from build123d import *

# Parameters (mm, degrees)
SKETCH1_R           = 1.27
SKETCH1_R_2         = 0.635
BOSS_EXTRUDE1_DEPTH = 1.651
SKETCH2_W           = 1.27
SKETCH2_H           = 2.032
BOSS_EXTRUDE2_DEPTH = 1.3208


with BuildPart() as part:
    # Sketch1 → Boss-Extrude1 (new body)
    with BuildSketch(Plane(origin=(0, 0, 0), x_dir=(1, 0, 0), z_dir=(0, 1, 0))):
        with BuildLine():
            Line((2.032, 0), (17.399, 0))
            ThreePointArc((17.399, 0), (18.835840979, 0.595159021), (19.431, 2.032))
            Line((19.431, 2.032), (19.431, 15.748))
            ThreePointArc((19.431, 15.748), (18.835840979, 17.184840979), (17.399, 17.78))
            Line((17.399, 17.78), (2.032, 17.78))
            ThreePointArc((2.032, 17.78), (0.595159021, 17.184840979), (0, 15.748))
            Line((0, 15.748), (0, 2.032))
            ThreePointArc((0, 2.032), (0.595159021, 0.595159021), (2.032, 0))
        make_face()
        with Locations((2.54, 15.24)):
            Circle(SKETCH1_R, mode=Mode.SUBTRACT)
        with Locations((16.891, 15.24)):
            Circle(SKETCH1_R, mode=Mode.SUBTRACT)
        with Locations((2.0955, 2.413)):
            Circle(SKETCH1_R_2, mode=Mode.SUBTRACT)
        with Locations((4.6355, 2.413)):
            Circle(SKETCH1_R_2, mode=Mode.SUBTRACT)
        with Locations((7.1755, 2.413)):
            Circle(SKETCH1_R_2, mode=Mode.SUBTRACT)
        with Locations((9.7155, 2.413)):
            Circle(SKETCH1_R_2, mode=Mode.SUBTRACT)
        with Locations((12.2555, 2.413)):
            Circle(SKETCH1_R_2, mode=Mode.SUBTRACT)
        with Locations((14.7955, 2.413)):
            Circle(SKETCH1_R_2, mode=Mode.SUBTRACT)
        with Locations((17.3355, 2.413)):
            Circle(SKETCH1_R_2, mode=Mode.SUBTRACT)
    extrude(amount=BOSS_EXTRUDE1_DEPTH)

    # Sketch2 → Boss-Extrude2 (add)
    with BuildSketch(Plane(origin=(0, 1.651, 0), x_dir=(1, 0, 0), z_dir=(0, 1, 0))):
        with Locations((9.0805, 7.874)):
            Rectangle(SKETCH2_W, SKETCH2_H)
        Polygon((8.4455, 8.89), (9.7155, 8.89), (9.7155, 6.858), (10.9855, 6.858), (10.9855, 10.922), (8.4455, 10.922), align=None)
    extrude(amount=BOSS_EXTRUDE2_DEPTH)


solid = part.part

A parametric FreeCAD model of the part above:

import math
import FreeCAD as App
import Part
import Sketcher
Q = App.Units.Quantity


def add_polygon(sketch, points):
    """Adds a closed chain of lines whose ends are joined by coincident constraints."""
    first, n = sketch.GeometryCount, len(points)
    for a, b in zip(points, points[1:] + points[:1]):
        sketch.addGeometry(Part.LineSegment(App.Vector(*a, 0), App.Vector(*b, 0)), False)
    for i in range(n):
        sketch.addConstraint(Sketcher.Constraint("Coincident", first + i, 2, first + (i + 1) % n, 1))

doc = App.newDocument("Part")
body = doc.addObject("PartDesign::Body", "Body")

# Sketch on XZ plane
sketch1 = body.newObject("Sketcher::SketchObject", "Sketch")
sketch1.AttachmentSupport = (doc.getObject("XZ_Plane"), [""])
sketch1.MapMode = "FlatFace"
sketch1.addGeometry([
    Part.LineSegment(App.Vector(2, 0, 0), App.Vector(17.4, 0, 0)),  # 0
    Part.ArcOfCircle(Part.Circle(App.Vector(17.4, -2, 0), App.Vector(0, 0, 1), 2), math.radians(0), math.radians(90)),  # 1
    Part.LineSegment(App.Vector(19.4, -2, 0), App.Vector(19.4, -15.7, 0)),  # 2
    Part.ArcOfCircle(Part.Circle(App.Vector(17.4, -15.7, 0), App.Vector(0, 0, 1), 2), math.radians(-90), math.radians(0)),  # 3
    Part.LineSegment(App.Vector(17.4, -17.8, 0), App.Vector(2, -17.8, 0)),  # 4
    Part.ArcOfCircle(Part.Circle(App.Vector(2, -15.7, 0), App.Vector(0, 0, 1), 2), math.radians(-180), math.radians(-90)),  # 5
    Part.LineSegment(App.Vector(0, -15.7, 0), App.Vector(0, -2, 0)),  # 6
    Part.ArcOfCircle(Part.Circle(App.Vector(2, -2, 0), App.Vector(0, 0, 1), 2), math.radians(90), math.radians(180)),  # 7
    Part.Circle(App.Vector(2.1, -2.4, 0), App.Vector(0, 0, 1), 0.6),  # 8
    Part.Circle(App.Vector(4.6, -2.4, 0), App.Vector(0, 0, 1), 0.6),  # 9
    Part.Circle(App.Vector(7.2, -2.4, 0), App.Vector(0, 0, 1), 0.6),  # 10
    Part.Circle(App.Vector(9.7, -2.4, 0), App.Vector(0, 0, 1), 0.6),  # 11
    Part.Circle(App.Vector(12.3, -2.4, 0), App.Vector(0, 0, 1), 0.6),  # 12
    Part.Circle(App.Vector(14.8, -2.4, 0), App.Vector(0, 0, 1), 0.6),  # 13
    Part.Circle(App.Vector(17.3, -2.4, 0), App.Vector(0, 0, 1), 0.6),  # 14
    Part.Circle(App.Vector(2.5, -15.2, 0), App.Vector(0, 0, 1), 1.3),  # 15
    Part.Circle(App.Vector(16.9, -15.2, 0), App.Vector(0, 0, 1), 1.3),  # 16
], False)
sketch1.addConstraint([
    Sketcher.Constraint("Tangent", 0, 2, 1, 2),
    Sketcher.Constraint("Tangent", 1, 1, 2, 1),
    Sketcher.Constraint("Tangent", 2, 2, 3, 2),
    Sketcher.Constraint("Tangent", 3, 1, 4, 1),
    Sketcher.Constraint("Tangent", 4, 2, 5, 2),
    Sketcher.Constraint("Tangent", 5, 1, 6, 1),
    Sketcher.Constraint("Tangent", 6, 2, 7, 2),
    Sketcher.Constraint("Tangent", 7, 1, 0, 1),
    Sketcher.Constraint("Horizontal", 0),
    Sketcher.Constraint("Vertical", 2),
    Sketcher.Constraint("Horizontal", 4),
    Sketcher.Constraint("Vertical", 6),
    Sketcher.Constraint("Equal", 1, 3),
    Sketcher.Constraint("Equal", 3, 5),
    Sketcher.Constraint("Equal", 5, 7),
    Sketcher.Constraint("Equal", 8, 9),
    Sketcher.Constraint("Equal", 9, 10),
    Sketcher.Constraint("Equal", 10, 11),
    Sketcher.Constraint("Equal", 11, 12),
    Sketcher.Constraint("Equal", 12, 13),
    Sketcher.Constraint("Equal", 13, 14),
    Sketcher.Constraint("Equal", 15, 16),
    Sketcher.Constraint("PointOnObject", 0, 2, -1),
    Sketcher.Constraint("PointOnObject", 5, 1, -2),
    Sketcher.Constraint("Horizontal", 8, 3, 9, 3),
    Sketcher.Constraint("Horizontal", 9, 3, 10, 3),
    Sketcher.Constraint("Horizontal", 10, 3, 11, 3),
    Sketcher.Constraint("Horizontal", 11, 3, 12, 3),
    Sketcher.Constraint("Horizontal", 12, 3, 13, 3),
    Sketcher.Constraint("Horizontal", 13, 3, 14, 3),
    Sketcher.Constraint("Horizontal", 15, 3, 16, 3),
    Sketcher.Constraint("Diameter", 15, Q("0.1 in")),
    Sketcher.Constraint("Diameter", 8, Q("0.05 in")),
    Sketcher.Constraint("Radius", 1, Q("0.08 in")),
    Sketcher.Constraint("DistanceY", 2, 2, 2, 1, Q("0.54 in")),
    Sketcher.Constraint("DistanceX", -1, 1, 15, 3, Q("0.1 in")),
    Sketcher.Constraint("DistanceY", 15, 3, -1, 1, Q("0.6 in")),
    Sketcher.Constraint("DistanceX", 8, 3, 9, 3, Q("0.1 in")),
    Sketcher.Constraint("DistanceX", 9, 3, 10, 3, Q("0.1 in")),
    Sketcher.Constraint("DistanceX", 10, 3, 11, 3, Q("0.1 in")),
    Sketcher.Constraint("DistanceX", 11, 3, 12, 3, Q("0.1 in")),
    Sketcher.Constraint("DistanceX", 12, 3, 13, 3, Q("0.1 in")),
    Sketcher.Constraint("DistanceX", 13, 3, 14, 3, Q("0.1 in")),
    Sketcher.Constraint("DistanceX", 16, 3, 2, 2, Q("0.1 in")),
    Sketcher.Constraint("DistanceX", 0, 1, 0, 2, Q("0.605 in")),
    Sketcher.Constraint("DistanceY", 8, 3, -1, 1, Q("0.095 in")),
    Sketcher.Constraint("DistanceX", -1, 1, 8, 3, Q("0.0825 in")),
])
pad1 = body.newObject("PartDesign::Pad", "Pad")
pad1.Profile = sketch1
pad1.Length = Q("0.065 in")
pad1.Reversed = True

# Sketch on XZ plane
sketch2 = body.newObject("Sketcher::SketchObject", "Sketch001")
sketch2.AttachmentSupport = (doc.getObject("XZ_Plane"), [""])
sketch2.MapMode = "FlatFace"
sketch2.AttachmentOffset = App.Placement(App.Vector(0, 0, -0.065 * 25.4), App.Rotation())
add_polygon(sketch2, [(8.4, -6.9), (11, -6.9), (11, -10.9), (8.4, -10.9)])  # lines 0-3
sketch2.addConstraint([
    Sketcher.Constraint("Horizontal", 0),
    Sketcher.Constraint("Vertical", 1),
    Sketcher.Constraint("Horizontal", 2),
    Sketcher.Constraint("Vertical", 3),
    Sketcher.Constraint("DistanceX", 0, 1, 0, 2, Q("0.1 in")),
    Sketcher.Constraint("DistanceY", 1, 2, 1, 1, Q("0.16 in")),
    Sketcher.Constraint("DistanceY", 0, 2, -1, 1, Q("0.27 in")),
    Sketcher.Constraint("DistanceX", -1, 1, 0, 2, Q("0.4325 in")),
])
pad2 = body.newObject("PartDesign::Pad", "Pad001")
pad2.Profile = sketch2
pad2.Length = Q("0.052 in")
pad2.Reversed = True

doc.recompute()
